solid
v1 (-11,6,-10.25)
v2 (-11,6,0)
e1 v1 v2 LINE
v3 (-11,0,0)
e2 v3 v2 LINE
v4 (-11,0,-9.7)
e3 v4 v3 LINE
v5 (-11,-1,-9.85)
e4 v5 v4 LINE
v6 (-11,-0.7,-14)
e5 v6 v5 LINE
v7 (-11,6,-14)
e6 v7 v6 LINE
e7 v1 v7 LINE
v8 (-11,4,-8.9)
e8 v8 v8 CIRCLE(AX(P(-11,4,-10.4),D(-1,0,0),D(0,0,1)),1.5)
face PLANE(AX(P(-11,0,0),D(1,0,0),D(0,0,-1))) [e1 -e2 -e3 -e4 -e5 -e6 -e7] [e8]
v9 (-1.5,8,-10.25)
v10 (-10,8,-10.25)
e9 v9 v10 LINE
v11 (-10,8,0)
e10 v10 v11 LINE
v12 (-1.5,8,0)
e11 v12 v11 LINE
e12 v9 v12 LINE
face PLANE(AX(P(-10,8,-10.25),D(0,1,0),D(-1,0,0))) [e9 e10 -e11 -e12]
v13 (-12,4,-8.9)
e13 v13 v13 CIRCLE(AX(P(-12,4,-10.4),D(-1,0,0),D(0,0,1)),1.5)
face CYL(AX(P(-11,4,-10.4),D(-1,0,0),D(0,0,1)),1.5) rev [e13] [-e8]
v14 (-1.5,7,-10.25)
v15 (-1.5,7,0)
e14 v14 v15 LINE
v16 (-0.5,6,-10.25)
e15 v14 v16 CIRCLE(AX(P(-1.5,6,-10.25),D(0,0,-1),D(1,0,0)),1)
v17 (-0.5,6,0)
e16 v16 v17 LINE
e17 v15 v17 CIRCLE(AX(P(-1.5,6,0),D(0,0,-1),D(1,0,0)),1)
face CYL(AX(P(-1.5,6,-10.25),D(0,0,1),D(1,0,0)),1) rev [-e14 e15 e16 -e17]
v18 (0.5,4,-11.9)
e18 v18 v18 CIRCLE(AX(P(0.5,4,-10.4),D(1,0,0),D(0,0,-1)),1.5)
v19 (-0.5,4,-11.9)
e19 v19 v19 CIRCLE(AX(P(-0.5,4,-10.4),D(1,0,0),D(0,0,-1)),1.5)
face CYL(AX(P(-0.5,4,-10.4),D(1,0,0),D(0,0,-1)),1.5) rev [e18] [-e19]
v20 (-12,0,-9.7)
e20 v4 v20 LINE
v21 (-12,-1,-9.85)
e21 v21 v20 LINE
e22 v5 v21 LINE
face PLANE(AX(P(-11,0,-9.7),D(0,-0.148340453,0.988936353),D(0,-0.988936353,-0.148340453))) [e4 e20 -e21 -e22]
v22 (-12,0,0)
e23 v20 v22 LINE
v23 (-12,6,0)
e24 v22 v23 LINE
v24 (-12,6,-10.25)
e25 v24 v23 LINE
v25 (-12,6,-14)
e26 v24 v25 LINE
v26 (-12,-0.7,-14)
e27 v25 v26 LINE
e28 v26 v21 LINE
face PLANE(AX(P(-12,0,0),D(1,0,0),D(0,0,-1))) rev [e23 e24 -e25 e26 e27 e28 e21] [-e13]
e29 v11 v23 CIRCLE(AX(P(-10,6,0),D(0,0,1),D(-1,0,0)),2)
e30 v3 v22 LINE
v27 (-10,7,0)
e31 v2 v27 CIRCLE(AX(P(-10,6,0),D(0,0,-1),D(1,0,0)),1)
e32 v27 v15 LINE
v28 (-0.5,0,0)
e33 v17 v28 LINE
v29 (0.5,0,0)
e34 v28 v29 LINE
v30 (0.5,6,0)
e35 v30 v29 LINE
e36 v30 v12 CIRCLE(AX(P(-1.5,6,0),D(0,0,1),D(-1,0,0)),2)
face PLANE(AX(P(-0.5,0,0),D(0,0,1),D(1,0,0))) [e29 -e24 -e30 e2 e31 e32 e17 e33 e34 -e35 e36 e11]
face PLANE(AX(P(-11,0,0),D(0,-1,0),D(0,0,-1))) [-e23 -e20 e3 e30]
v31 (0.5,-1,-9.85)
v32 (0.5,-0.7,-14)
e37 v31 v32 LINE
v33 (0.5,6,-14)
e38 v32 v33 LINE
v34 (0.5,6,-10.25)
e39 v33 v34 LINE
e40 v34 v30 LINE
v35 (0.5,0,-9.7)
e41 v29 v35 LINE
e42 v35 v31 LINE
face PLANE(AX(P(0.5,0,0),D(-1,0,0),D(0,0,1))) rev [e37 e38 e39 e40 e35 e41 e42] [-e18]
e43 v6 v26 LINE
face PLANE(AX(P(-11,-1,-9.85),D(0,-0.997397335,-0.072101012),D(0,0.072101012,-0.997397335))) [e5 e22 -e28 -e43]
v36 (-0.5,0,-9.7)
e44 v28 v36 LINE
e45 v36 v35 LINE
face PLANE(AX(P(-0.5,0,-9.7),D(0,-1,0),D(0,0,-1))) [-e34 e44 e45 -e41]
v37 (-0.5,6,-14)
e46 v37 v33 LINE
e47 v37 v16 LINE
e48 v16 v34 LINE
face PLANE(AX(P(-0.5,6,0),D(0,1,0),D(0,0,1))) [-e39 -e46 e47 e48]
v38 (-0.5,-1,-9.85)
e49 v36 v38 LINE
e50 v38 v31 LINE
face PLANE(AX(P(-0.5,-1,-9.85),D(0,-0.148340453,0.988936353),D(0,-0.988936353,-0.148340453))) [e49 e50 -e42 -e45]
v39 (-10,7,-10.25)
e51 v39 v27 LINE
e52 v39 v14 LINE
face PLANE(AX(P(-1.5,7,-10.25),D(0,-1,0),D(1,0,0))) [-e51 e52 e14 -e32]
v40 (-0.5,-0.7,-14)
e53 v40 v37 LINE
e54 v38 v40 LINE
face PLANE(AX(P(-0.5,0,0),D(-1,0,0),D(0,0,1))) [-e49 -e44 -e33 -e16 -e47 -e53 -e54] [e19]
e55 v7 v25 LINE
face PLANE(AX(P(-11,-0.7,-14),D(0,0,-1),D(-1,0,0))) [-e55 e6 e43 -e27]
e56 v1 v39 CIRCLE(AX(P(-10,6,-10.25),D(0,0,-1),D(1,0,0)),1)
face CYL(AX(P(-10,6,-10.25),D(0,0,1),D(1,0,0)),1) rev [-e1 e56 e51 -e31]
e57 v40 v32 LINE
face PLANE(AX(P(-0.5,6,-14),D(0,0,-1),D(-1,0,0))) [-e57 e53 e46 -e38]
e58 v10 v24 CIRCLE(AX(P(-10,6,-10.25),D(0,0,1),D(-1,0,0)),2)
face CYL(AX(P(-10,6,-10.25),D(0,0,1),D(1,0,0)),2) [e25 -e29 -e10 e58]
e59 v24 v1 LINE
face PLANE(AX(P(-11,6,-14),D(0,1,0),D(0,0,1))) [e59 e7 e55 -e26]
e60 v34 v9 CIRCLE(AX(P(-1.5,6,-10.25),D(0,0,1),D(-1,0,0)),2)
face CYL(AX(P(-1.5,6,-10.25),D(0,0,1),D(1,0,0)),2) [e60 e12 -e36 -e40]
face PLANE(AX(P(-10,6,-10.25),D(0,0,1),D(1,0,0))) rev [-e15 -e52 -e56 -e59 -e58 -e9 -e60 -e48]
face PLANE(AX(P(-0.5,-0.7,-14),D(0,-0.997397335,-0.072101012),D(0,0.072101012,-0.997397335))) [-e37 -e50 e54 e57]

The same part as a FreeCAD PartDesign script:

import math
import FreeCAD as App
import Part
import Sketcher

V = App.Vector
Q = App.Units.Quantity

doc = App.newDocument("Part")
body = doc.addObject("PartDesign::Body", "Body")

sketch1 = doc.addObject("Sketcher::SketchObject", "Sketch")
body.addObject(sketch1)
sketch1.AttachmentSupport = (doc.YZ_Plane, [""])
sketch1.MapMode = "FlatFace"
sketch1.addGeometry([
    Part.LineSegment(V(6, 0, 0), V(0, 0, 0)),
    Part.LineSegment(V(0, 0, 0), V(0, -9.7, 0)),
    Part.LineSegment(V(0, -9.7, 0), V(-1, -9.8, 0)),
    Part.LineSegment(V(-1, -9.8, 0), V(-0.7, -14, 0)),
    Part.LineSegment(V(-0.7, -14, 0), V(6, -14, 0)),
    Part.LineSegment(V(6, -14, 0), V(6, 0, 0)),
    Part.Circle(V(4, -10.4, 0), V(0, 0, 1), 1.5),
], False)
sketch1.addConstraint([
    Sketcher.Constraint("Coincident", 0, 2, 1, 1),
    Sketcher.Constraint("Coincident", 1, 2, 2, 1),
    Sketcher.Constraint("Coincident", 2, 2, 3, 1),
    Sketcher.Constraint("Coincident", 3, 2, 4, 1),
    Sketcher.Constraint("Coincident", 4, 2, 5, 1),
    Sketcher.Constraint("Coincident", 5, 2, 0, 1),
    Sketcher.Constraint("Horizontal", 0),
    Sketcher.Constraint("Vertical", 1),
    Sketcher.Constraint("Horizontal", 4),
    Sketcher.Constraint("Vertical", 5),
    Sketcher.Constraint("Coincident", 0, 2, -1, 1),
    Sketcher.Constraint("Diameter", 6, Q("3 mm")),
    Sketcher.Constraint("DistanceX", 0, 2, 0, 1, Q("6 mm")),
    Sketcher.Constraint("DistanceY", 5, 1, 5, 2, Q("14 mm")),
    Sketcher.Constraint("DistanceX", 4, 1, 4, 2, Q("6.7 mm")),
    Sketcher.Constraint("DistanceY", 1, 2, 1, 1, Q("9.7 mm")),
    Sketcher.Constraint("DistanceX", -1, 1, 6, 3, Q("4 mm")),
    Sketcher.Constraint("DistanceX", 2, 2, -1, 1, Q("1 mm")),
    Sketcher.Constraint("DistanceY", 6, 3, -1, 1, Q("10.4 mm")),
    Sketcher.Constraint("DistanceY", 2, 2, -1, 1, Q("9.85 mm")),
])
pad1 = doc.addObject("PartDesign::Pad", "Pad")
body.addObject(pad1)
pad1.Profile = sketch1
pad1.Length = 1
pad1.Midplane = True
body2 = doc.addObject("PartDesign::Body", "Body001")

sketch2 = doc.addObject("Sketcher::SketchObject", "Sketch001")
body2.addObject(sketch2)
sketch2.AttachmentSupport = (doc.getObject("YZ_Plane001"), [""])
sketch2.MapMode = "FlatFace"
sketch2.AttachmentOffset = App.Placement(V(0, 0, -11.5), App.Rotation())
sketch2.addGeometry([
    Part.LineSegment(V(-1, -9.8, 0), V(0, -9.7, 0)),
    Part.LineSegment(V(0, -9.7, 0), V(0, 0, 0)),
    Part.LineSegment(V(0, 0, 0), V(6, 0, 0)),
    Part.LineSegment(V(6, 0, 0), V(6, -14, 0)),
    Part.LineSegment(V(6, -14, 0), V(-0.7, -14, 0)),
    Part.LineSegment(V(-0.7, -14, 0), V(-1, -9.8, 0)),
    Part.Circle(V(4, -10.4, 0), V(0, 0, 1), 1.5),
], False)
sketch2.addConstraint([
    Sketcher.Constraint("Coincident", 0, 2, 1, 1),
    Sketcher.Constraint("Coincident", 1, 2, 2, 1),
    Sketcher.Constraint("Coincident", 2, 2, 3, 1),
    Sketcher.Constraint("Coincident", 3, 2, 4, 1),
    Sketcher.Constraint("Coincident", 4, 2, 5, 1),
    Sketcher.Constraint("Coincident", 5, 2, 0, 1),
    Sketcher.Constraint("Vertical", 1),
    Sketcher.Constraint("Horizontal", 2),
    Sketcher.Constraint("Vertical", 3),
    Sketcher.Constraint("Horizontal", 4),
    Sketcher.Constraint("Coincident", 1, 2, -1, 1),
    Sketcher.Constraint("Diameter", 6, Q("3 mm")),
    Sketcher.Constraint("DistanceX", 2, 1, 2, 2, Q("6 mm")),
    Sketcher.Constraint("DistanceY", 3, 2, 3, 1, Q("14 mm")),
    Sketcher.Constraint("DistanceX", 4, 2, 4, 1, Q("6.7 mm")),
    Sketcher.Constraint("DistanceY", 1, 1, 1, 2, Q("9.7 mm")),
    Sketcher.Constraint("DistanceX", -1, 1, 6, 3, Q("4 mm")),
    Sketcher.Constraint("DistanceX", 5, 2, -1, 1, Q("1 mm")),
    Sketcher.Constraint("DistanceY", 6, 3, -1, 1, Q("10.4 mm")),
    Sketcher.Constraint("DistanceY", 5, 2, -1, 1, Q("9.85 mm")),
])
pad2 = doc.addObject("PartDesign::Pad", "Pad001")
body2.addObject(pad2)
pad2.Profile = sketch2
pad2.Length = 1
pad2.Midplane = True
body.AllowCompound = True
doc.recompute()

boolean = doc.addObject("PartDesign::Boolean", "Boolean")
body.addObject(boolean)
boolean.Type = "Fuse"
boolean.addObjects([body2])

sketch3 = doc.addObject("Sketcher::SketchObject", "Sketch002")
body.addObject(sketch3)
sketch3.AttachmentSupport = (doc.XY_Plane, [""])
sketch3.MapMode = "FlatFace"
sketch3.addGeometry([
    Part.LineSegment(V(-12, 6, 0), V(-11, 6, 0)),
    Part.ArcOfCircle(Part.Circle(V(-10, 6, 0), V(0, 0, 1), 1), math.radians(90), math.radians(180)),
    Part.LineSegment(V(-10, 7, 0), V(-1.5, 7, 0)),
    Part.ArcOfCircle(Part.Circle(V(-1.5, 6, 0), V(0, 0, 1), 1), math.radians(0), math.radians(90)),
    Part.LineSegment(V(-0.5, 6, 0), V(0.5, 6, 0)),
    Part.ArcOfCircle(Part.Circle(V(-1.5, 6, 0), V(0, 0, 1), 2), math.radians(0), math.radians(90)),
    Part.LineSegment(V(-1.5, 8, 0), V(-10, 8, 0)),
    Part.ArcOfCircle(Part.Circle(V(-10, 6, 0), V(0, 0, 1), 2), math.radians(90), math.radians(180)),
], False)
sketch3.addConstraint([
    Sketcher.Constraint("Coincident", 0, 2, 1, 2),
    Sketcher.Constraint("Tangent", 1, 1, 2, 1),
    Sketcher.Constraint("Tangent", 2, 2, 3, 2),
    Sketcher.Constraint("Coincident", 3, 1, 4, 1),
    Sketcher.Constraint("Coincident", 4, 2, 5, 1),
    Sketcher.Constraint("Tangent", 5, 2, 6, 1),
    Sketcher.Constraint("Tangent", 6, 2, 7, 1),
    Sketcher.Constraint("Coincident", 7, 2, 0, 1),
    Sketcher.Constraint("Horizontal", 0),
    Sketcher.Constraint("Horizontal", 2),
    Sketcher.Constraint("Horizontal", 4),
    Sketcher.Constraint("Horizontal", 6),
    Sketcher.Constraint("Coincident", 5, 3, 3, 3),
    Sketcher.Constraint("Coincident", 7, 3, 1, 3),
    Sketcher.Constraint("Equal", 1, 3),
    Sketcher.Constraint("Horizontal", 7, 3, 0, 2),
    Sketcher.Constraint("Horizontal", 0, 2, 3, 1),
    Sketcher.Constraint("Radius", 1, Q("1 mm")),
    Sketcher.Constraint("Radius", 5, Q("2 mm")),
    Sketcher.Constraint("DistanceX", 2, 1, 2, 2, Q("8.5 mm")),
    Sketcher.Constraint("DistanceX", 1, 3, -1, 1, Q("10 mm")),
    Sketcher.Constraint("DistanceY", -1, 1, 1, 3, Q("6 mm")),
])
pad3 = doc.addObject("PartDesign::Pad", "Pad002")
body.addObject(pad3)
pad3.Profile = sketch3
pad3.Length = 10.25
pad3.Reversed = True

doc.recompute()
